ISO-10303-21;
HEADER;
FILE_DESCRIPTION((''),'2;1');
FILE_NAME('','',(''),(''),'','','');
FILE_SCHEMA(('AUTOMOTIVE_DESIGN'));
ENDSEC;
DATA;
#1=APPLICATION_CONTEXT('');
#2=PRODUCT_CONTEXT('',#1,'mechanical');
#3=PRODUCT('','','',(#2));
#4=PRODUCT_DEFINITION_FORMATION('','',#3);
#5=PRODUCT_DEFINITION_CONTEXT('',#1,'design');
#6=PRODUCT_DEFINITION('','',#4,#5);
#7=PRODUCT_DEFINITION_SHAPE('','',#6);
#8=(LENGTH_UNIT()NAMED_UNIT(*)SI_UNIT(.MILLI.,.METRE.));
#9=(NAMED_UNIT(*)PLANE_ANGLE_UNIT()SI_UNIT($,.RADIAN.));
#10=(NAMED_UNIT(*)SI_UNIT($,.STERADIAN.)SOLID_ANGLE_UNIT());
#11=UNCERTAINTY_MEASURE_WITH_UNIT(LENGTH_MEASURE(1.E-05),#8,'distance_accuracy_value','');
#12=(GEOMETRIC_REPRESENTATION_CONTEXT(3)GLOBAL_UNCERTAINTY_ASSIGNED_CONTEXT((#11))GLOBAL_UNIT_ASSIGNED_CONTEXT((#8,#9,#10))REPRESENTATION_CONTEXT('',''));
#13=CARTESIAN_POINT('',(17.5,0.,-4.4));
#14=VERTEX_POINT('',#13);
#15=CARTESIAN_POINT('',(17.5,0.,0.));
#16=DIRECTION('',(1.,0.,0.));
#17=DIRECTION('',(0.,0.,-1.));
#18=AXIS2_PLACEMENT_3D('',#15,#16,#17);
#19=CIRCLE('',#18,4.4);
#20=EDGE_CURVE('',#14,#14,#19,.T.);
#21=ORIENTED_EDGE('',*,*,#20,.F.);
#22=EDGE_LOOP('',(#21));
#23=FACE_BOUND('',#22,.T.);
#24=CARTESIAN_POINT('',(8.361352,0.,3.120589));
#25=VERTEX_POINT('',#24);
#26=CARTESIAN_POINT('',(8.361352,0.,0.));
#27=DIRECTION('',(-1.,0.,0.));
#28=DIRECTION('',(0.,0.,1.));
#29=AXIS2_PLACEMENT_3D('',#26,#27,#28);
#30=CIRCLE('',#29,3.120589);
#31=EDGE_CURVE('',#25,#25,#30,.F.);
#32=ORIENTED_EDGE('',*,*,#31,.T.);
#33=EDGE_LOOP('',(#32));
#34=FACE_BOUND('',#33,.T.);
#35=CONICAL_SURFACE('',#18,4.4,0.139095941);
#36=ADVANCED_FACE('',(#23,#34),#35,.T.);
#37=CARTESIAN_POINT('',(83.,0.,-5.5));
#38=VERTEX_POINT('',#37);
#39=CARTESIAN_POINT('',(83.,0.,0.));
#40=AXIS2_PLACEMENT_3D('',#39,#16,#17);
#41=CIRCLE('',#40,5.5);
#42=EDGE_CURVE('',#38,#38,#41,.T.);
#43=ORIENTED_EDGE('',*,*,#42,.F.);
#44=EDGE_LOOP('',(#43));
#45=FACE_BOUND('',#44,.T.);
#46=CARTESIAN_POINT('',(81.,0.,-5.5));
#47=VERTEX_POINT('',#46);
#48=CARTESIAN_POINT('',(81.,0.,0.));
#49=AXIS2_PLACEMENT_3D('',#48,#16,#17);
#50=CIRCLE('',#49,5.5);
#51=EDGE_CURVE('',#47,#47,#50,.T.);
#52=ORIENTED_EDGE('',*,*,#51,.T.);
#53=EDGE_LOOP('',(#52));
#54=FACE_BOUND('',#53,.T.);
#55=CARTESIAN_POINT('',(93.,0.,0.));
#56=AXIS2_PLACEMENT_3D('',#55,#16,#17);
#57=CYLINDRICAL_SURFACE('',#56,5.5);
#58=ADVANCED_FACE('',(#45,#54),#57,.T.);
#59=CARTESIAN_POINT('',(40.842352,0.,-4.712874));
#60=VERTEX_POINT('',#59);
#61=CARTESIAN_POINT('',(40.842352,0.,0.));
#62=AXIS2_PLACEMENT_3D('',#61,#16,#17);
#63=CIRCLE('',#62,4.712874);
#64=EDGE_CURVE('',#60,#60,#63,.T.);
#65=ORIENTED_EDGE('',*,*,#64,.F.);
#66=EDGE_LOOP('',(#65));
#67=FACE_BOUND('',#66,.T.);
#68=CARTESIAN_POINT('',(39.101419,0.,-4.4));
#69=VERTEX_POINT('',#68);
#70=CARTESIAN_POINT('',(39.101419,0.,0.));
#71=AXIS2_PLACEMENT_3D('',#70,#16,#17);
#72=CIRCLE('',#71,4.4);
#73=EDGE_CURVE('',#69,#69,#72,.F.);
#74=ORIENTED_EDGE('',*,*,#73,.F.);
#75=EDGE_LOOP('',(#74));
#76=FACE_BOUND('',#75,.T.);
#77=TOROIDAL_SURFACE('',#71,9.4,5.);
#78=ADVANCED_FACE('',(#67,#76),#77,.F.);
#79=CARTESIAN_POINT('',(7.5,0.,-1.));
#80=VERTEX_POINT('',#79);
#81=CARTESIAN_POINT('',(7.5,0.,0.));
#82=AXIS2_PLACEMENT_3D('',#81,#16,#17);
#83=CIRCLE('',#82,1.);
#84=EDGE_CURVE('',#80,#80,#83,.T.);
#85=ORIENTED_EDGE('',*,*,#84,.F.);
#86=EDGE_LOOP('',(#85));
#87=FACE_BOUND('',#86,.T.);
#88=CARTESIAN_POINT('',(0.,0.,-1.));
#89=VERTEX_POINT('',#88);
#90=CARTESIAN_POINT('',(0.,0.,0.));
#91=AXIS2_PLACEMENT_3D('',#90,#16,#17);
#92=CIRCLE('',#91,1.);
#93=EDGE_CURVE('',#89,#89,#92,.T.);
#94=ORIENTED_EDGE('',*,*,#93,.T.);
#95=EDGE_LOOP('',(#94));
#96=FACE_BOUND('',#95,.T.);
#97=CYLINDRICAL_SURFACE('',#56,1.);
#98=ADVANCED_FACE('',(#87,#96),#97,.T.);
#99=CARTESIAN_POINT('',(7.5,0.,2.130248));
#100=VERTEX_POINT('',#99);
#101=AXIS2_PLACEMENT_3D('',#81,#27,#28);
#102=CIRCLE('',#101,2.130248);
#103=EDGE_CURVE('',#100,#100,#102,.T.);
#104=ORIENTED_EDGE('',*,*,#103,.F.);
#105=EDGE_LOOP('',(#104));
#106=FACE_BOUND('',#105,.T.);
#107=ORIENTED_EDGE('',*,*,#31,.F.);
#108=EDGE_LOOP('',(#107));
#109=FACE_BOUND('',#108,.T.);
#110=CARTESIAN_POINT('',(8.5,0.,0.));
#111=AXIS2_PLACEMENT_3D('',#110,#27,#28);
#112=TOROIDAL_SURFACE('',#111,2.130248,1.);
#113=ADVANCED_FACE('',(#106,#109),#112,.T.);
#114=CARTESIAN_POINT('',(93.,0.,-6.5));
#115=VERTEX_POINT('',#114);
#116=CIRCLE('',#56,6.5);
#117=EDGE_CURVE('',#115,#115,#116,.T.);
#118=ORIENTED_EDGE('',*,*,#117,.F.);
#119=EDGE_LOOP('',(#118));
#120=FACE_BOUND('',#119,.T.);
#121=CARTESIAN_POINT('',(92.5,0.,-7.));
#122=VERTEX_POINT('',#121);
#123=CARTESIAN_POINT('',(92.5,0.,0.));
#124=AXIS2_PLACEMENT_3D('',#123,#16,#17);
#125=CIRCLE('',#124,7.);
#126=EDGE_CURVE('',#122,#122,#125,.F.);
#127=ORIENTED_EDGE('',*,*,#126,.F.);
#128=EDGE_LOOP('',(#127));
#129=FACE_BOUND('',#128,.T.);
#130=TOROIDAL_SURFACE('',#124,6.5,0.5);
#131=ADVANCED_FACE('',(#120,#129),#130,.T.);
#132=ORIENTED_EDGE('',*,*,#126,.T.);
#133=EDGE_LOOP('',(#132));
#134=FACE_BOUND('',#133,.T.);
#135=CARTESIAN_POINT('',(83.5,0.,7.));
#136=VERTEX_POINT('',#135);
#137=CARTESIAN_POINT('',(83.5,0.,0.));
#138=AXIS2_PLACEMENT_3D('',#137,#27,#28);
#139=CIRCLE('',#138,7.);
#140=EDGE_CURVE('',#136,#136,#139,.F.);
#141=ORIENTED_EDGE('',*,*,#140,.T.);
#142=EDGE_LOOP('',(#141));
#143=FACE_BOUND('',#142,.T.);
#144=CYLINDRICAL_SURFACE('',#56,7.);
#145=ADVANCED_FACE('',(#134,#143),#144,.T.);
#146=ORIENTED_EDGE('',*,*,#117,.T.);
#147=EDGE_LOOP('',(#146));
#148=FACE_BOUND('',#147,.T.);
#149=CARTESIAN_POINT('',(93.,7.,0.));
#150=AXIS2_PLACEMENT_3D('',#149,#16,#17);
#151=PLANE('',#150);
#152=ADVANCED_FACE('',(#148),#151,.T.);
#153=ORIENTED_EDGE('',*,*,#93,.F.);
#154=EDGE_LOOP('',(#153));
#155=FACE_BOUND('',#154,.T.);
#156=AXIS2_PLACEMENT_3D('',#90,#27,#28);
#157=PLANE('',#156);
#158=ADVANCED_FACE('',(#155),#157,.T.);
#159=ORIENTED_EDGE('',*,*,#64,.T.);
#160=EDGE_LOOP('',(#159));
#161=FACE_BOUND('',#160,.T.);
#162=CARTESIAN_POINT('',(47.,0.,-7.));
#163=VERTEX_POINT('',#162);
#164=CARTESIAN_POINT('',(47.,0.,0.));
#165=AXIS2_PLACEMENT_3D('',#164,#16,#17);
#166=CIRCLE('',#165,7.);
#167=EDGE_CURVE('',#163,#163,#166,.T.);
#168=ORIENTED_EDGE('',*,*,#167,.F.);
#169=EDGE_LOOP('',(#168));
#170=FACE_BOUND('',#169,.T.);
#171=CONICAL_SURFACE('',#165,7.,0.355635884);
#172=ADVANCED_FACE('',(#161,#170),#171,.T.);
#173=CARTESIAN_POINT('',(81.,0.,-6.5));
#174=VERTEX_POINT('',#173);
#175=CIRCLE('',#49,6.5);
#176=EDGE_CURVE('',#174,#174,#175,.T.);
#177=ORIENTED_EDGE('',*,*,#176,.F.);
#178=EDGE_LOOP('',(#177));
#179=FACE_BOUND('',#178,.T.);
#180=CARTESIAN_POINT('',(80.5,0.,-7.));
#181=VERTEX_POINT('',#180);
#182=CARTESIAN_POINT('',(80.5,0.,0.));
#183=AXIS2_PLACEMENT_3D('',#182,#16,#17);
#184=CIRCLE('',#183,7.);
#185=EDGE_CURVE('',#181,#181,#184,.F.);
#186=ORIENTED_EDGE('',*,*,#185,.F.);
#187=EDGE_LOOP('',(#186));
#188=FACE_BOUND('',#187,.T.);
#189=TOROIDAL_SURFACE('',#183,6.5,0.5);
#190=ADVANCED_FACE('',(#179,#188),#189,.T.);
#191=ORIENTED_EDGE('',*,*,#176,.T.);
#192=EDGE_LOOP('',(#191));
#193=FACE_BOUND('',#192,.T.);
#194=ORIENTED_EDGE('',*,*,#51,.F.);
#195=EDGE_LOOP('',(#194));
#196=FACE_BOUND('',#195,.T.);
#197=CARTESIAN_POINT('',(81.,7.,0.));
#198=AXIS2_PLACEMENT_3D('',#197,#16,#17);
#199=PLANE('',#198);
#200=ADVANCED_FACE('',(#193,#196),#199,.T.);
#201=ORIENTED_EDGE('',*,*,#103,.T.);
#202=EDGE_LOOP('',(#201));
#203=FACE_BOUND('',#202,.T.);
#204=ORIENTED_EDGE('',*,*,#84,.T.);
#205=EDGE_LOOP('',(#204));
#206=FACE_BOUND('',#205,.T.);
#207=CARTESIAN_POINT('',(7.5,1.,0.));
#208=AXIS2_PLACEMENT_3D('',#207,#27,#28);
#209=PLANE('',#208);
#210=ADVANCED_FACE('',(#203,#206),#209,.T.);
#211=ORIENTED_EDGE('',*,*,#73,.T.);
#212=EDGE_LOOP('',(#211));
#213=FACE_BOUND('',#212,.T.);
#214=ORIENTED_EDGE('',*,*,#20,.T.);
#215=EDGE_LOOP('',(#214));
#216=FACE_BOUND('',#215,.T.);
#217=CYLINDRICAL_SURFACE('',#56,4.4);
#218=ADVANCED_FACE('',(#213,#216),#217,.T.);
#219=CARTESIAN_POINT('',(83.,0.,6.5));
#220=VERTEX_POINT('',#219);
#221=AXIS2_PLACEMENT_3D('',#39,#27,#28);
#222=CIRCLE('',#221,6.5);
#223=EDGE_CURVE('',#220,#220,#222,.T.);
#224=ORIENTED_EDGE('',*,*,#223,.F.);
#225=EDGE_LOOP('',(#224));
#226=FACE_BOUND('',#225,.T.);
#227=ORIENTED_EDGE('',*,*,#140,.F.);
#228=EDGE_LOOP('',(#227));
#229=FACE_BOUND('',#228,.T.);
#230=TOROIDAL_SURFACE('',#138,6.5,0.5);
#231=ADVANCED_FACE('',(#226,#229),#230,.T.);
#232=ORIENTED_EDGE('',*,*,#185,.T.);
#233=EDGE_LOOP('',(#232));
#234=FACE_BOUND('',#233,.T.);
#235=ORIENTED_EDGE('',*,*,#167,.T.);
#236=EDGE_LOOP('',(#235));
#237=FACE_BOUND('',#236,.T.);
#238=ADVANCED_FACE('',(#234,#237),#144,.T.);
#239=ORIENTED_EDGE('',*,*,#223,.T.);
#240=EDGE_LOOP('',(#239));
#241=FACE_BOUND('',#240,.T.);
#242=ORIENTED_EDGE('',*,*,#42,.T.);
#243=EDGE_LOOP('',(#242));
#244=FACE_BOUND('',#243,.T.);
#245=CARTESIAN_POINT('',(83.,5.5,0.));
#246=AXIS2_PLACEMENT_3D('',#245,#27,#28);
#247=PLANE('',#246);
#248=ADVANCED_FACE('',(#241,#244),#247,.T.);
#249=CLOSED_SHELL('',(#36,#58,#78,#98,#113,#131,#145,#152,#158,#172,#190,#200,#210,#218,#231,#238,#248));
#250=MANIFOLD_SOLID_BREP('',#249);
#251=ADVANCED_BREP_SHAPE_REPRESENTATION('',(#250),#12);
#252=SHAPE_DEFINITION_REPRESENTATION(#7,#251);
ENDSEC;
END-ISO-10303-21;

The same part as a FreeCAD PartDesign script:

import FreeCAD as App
import Part
import Sketcher


def edges_at(feature, points):
    """Names of the edges that pass closest to the given points."""
    edges = feature.Shape.Edges
    near = lambda p: min(range(len(edges)), key=lambda i: edges[i].distToShape(Part.Vertex(*p))[0])
    return sorted({f"Edge{near(p) + 1}" for p in points})


def add_polygon(sketch, points):
    """Adds a closed chain of lines whose ends are joined by coincident constraints."""
    first, n = sketch.GeometryCount, len(points)
    for a, b in zip(points, points[1:] + points[:1]):
        sketch.addGeometry(Part.LineSegment(App.Vector(*a, 0), App.Vector(*b, 0)), False)
    for i in range(n):
        sketch.addConstraint(Sketcher.Constraint("Coincident", first + i, 2, first + (i + 1) % n, 1))

doc = App.newDocument("Part")
body = doc.addObject("PartDesign::Body", "Body")

# Sketch on XY plane
sketch1 = body.newObject("Sketcher::SketchObject", "Sketch")
sketch1.AttachmentSupport = (doc.getObject("XY_Plane"), [""])
sketch1.MapMode = "FlatFace"
add_polygon(sketch1, [(0, 1), (0, 0), (93, 0), (93, 7), (83, 7), (83, 5.5), (81, 5.5), (81, 7), (47, 7), (40, 4.4), (17.5, 4.4), (7.5, 3), (7.5, 1)])  # lines 0-12
sketch1.addConstraint([
    Sketcher.Constraint("Vertical", 0),
    Sketcher.Constraint("Horizontal", 1),
    Sketcher.Constraint("Vertical", 2),
    Sketcher.Constraint("Horizontal", 3),
    Sketcher.Constraint("Vertical", 4),
    Sketcher.Constraint("Horizontal", 5),
    Sketcher.Constraint("Vertical", 6),
    Sketcher.Constraint("Horizontal", 7),
    Sketcher.Constraint("Horizontal", 9),
    Sketcher.Constraint("Vertical", 11),
    Sketcher.Constraint("Horizontal", 12),
    Sketcher.Constraint("Coincident", 0, 2, -1, 1),
    Sketcher.Constraint("Horizontal", 3, 2, 6, 2),
    Sketcher.Constraint("Equal", 5, 11),
    Sketcher.Constraint("DistanceX", 1, 1, 1, 2, 93.0),
    Sketcher.Constraint("DistanceX", 3, 2, 3, 1, 10.0),
    Sketcher.Constraint("DistanceX", 5, 2, 5, 1, 2.0),
    Sketcher.Constraint("DistanceX", 7, 2, 7, 1, 34.0),
    Sketcher.Constraint("DistanceY", 0, 2, 0, 1, 1.0),
    Sketcher.Constraint("DistanceY", 2, 1, 2, 2, 7.0),
    Sketcher.Constraint("DistanceX", 9, 2, 9, 1, 22.5),
    Sketcher.Constraint("DistanceX", 12, 2, 12, 1, 7.5),
    Sketcher.Constraint("DistanceY", 4, 2, 4, 1, 1.5),
    Sketcher.Constraint("DistanceX", -1, 1, 8, 2, 40.0),
    Sketcher.Constraint("DistanceY", -1, 1, 8, 2, 4.4),
])
revolution = body.newObject("PartDesign::Revolution", "Revolution")
revolution.Profile = sketch1
revolution.ReferenceAxis = (sketch1, ["H_Axis"])
revolution.Angle = 360
doc.recompute()

fillet = body.newObject("PartDesign::Fillet", "Fillet")
fillet.Base = (revolution, edges_at(revolution, [(40, 0, 4.4)]))
fillet.Radius = 5
doc.recompute()

fillet2 = body.newObject("PartDesign::Fillet", "Fillet001")
fillet2.Base = (fillet, edges_at(fillet, [(7.5, 0, 3)]))
fillet2.Radius = 1
doc.recompute()

fillet3 = body.newObject("PartDesign::Fillet", "Fillet002")
fillet3.Base = (fillet2, edges_at(fillet2, [(81, 0, 7), (93, 0, 7), (83, 0, 7)]))
fillet3.Radius = 0.5

doc.recompute()
